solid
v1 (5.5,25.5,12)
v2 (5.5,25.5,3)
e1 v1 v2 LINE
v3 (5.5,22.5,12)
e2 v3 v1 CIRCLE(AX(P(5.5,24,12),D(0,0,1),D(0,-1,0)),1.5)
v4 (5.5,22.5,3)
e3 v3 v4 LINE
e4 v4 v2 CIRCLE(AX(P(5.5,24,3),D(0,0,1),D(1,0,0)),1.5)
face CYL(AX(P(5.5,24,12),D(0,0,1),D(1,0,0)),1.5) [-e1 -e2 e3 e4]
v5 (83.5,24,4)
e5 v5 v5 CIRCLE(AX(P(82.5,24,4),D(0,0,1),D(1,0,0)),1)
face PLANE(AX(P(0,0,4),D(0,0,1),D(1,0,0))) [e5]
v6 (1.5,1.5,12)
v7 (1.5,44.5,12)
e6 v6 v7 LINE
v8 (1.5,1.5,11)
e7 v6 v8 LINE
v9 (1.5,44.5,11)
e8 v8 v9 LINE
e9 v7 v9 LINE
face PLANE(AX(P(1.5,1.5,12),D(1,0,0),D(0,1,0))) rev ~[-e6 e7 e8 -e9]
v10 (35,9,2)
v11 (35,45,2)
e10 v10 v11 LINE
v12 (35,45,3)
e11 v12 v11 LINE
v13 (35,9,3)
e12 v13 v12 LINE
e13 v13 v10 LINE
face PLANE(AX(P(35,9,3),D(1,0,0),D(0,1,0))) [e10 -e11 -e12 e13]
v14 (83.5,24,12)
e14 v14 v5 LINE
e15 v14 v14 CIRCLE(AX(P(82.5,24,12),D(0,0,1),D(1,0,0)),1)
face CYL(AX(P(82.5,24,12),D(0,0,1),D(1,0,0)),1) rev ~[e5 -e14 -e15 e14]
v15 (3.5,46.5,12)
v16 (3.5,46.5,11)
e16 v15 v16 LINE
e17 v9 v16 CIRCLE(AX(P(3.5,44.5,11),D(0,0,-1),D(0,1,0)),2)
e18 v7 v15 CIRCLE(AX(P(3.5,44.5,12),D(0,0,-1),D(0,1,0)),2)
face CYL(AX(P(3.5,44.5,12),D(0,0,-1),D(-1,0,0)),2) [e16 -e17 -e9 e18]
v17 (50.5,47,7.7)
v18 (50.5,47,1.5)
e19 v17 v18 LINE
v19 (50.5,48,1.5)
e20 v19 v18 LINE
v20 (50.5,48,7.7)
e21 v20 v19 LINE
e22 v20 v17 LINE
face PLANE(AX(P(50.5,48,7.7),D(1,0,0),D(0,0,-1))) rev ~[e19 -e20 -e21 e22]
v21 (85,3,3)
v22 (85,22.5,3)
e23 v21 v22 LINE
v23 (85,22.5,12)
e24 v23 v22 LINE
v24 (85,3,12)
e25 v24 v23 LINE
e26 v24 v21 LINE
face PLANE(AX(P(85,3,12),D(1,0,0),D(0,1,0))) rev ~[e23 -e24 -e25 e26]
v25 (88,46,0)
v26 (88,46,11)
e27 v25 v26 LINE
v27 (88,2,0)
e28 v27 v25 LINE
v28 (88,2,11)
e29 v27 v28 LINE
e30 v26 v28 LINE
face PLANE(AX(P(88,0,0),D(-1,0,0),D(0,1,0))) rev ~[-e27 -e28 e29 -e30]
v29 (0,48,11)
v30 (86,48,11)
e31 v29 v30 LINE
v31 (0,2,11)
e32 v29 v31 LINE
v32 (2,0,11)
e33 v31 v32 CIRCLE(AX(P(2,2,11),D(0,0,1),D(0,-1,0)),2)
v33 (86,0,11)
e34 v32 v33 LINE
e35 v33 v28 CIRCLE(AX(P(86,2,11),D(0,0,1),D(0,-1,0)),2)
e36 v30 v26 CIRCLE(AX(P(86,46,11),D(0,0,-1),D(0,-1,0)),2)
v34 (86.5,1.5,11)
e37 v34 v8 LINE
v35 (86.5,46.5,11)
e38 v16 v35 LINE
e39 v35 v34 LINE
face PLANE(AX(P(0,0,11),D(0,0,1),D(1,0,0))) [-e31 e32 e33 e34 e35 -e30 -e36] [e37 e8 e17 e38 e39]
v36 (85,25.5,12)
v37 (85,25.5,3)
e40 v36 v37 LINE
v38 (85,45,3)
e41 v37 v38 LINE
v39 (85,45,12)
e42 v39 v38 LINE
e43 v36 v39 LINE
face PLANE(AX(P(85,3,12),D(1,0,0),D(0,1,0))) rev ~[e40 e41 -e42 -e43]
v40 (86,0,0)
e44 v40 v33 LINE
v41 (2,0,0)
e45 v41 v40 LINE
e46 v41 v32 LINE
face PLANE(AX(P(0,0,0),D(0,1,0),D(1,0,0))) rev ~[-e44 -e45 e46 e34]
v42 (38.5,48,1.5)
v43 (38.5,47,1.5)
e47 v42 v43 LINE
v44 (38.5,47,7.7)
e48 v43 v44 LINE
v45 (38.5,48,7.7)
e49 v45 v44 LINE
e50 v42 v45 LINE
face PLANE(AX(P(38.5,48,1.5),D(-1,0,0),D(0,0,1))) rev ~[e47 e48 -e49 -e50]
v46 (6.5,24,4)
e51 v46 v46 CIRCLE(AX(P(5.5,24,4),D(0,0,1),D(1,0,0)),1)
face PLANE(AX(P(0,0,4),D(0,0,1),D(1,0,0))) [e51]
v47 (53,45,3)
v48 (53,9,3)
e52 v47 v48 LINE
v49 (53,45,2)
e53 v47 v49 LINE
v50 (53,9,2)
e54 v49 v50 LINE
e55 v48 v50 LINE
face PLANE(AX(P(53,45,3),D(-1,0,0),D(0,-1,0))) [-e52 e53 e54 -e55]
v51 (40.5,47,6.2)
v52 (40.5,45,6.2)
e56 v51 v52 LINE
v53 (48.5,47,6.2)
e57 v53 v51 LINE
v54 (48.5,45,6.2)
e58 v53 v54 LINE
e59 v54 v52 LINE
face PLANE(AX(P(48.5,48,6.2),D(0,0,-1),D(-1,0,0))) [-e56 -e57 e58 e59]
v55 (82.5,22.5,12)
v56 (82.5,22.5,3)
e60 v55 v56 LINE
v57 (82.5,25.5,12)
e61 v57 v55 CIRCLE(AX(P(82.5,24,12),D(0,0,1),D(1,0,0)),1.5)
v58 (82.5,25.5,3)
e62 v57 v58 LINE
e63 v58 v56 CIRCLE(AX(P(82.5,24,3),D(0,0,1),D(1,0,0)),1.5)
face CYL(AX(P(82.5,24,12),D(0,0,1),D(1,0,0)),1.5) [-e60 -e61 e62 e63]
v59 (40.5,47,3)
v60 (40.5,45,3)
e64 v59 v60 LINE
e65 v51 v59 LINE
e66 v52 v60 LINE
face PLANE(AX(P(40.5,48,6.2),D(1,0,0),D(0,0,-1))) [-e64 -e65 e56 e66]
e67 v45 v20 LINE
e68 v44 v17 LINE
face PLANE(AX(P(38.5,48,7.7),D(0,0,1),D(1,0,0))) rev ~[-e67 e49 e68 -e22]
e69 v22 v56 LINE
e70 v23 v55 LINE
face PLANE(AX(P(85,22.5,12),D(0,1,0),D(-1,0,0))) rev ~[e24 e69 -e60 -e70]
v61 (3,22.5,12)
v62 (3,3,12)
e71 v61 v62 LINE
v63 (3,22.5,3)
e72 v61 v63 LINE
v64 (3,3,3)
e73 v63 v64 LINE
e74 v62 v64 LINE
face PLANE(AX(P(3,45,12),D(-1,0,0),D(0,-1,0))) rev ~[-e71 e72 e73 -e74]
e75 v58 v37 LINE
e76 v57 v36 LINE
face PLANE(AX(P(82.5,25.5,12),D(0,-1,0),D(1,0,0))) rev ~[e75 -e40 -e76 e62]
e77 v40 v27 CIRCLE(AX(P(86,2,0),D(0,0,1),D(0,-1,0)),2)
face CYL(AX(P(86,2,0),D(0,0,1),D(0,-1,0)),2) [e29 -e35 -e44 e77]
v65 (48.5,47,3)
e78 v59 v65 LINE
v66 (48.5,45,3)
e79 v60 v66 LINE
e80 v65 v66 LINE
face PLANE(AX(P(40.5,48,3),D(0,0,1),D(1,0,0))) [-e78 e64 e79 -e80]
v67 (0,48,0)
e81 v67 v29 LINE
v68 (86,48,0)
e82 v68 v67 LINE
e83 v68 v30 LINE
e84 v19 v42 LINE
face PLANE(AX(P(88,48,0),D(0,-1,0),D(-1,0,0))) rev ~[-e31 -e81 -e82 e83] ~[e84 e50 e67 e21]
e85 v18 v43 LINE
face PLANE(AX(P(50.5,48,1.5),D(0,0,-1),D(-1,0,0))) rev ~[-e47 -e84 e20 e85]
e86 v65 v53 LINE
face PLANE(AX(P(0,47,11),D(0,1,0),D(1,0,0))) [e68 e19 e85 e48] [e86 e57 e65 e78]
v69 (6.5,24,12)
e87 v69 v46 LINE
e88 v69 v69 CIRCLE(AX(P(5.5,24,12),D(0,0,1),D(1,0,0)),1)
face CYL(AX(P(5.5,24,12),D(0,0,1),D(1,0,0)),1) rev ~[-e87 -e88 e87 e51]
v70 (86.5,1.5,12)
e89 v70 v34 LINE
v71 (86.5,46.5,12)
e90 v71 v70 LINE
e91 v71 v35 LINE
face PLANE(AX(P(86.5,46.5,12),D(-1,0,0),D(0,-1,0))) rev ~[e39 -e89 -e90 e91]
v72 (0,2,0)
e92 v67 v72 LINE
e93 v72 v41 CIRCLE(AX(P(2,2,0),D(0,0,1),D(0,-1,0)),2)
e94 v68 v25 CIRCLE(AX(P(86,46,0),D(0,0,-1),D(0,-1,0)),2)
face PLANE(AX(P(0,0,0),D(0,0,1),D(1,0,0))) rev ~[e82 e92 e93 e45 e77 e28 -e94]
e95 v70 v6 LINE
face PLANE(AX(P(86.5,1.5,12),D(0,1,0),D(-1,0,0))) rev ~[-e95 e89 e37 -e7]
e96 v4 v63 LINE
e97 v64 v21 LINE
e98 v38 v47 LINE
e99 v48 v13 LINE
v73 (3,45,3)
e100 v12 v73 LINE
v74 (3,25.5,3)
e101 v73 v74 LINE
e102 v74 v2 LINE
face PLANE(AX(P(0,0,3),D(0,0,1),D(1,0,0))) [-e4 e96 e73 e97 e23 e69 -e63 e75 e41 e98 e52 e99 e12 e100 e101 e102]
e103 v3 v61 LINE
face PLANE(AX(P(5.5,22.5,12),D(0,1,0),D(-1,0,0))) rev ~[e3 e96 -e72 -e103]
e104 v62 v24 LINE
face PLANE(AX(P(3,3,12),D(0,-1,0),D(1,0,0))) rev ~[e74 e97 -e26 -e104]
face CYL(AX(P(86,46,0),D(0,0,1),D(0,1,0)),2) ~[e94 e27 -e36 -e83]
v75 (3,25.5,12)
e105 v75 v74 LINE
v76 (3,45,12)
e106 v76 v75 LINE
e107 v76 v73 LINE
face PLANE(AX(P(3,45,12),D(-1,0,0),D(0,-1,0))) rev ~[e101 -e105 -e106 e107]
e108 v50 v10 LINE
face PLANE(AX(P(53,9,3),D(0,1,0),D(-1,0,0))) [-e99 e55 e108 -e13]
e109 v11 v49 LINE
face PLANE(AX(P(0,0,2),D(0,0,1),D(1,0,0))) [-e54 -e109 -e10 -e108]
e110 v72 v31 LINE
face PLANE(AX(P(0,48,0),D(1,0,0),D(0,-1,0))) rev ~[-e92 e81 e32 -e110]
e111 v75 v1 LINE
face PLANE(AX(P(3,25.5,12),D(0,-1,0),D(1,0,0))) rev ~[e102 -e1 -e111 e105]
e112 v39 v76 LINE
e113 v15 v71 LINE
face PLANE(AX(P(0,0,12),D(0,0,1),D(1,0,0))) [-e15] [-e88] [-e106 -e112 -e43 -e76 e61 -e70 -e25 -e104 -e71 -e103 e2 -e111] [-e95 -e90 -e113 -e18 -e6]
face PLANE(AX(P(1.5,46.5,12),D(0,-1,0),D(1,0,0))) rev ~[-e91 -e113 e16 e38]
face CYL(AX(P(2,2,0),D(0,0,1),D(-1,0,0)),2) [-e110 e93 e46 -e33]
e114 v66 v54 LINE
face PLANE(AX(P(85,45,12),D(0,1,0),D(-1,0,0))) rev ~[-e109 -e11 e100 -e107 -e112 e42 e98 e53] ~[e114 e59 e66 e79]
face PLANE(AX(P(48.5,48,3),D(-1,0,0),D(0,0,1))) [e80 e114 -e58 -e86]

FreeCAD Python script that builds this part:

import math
import FreeCAD as App
import Part
import Sketcher
Q = App.Units.Quantity


def edges_at(feature, points):
    """Names of the edges that pass closest to the given points."""
    edges = feature.Shape.Edges
    near = lambda p: min(range(len(edges)), key=lambda i: edges[i].distToShape(Part.Vertex(*p))[0])
    return sorted({f"Edge{near(p) + 1}" for p in points})

doc = App.newDocument("Part")
body = doc.addObject("PartDesign::Body", "Body")

sketch1 = doc.addObject("Sketcher::SketchObject", "Sketch")
body.addObject(sketch1)
sketch1.AttachmentSupport = (doc.XY_Plane, [""])
sketch1.MapMode = "FlatFace"
sketch1.addGeometry([
    Part.LineSegment(App.Vector(0, 48, 0), App.Vector(0, 0, 0)),
    Part.LineSegment(App.Vector(0, 0, 0), App.Vector(88, 0, 0)),
    Part.LineSegment(App.Vector(88, 0, 0), App.Vector(88, 48, 0)),
    Part.LineSegment(App.Vector(88, 48, 0), App.Vector(0, 48, 0)),
], False)
sketch1.addConstraint([
    Sketcher.Constraint("Coincident", 0, 2, 1, 1),
    Sketcher.Constraint("Coincident", 1, 2, 2, 1),
    Sketcher.Constraint("Coincident", 2, 2, 3, 1),
    Sketcher.Constraint("Coincident", 3, 2, 0, 1),
    Sketcher.Constraint("Vertical", 0),
    Sketcher.Constraint("Horizontal", 1),
    Sketcher.Constraint("Vertical", 2),
    Sketcher.Constraint("Horizontal", 3),
    Sketcher.Constraint("Coincident", 0, 2, -1, 1),
    Sketcher.Constraint("DistanceX", 1, 1, 1, 2, Q("88 mm")),
    Sketcher.Constraint("DistanceY", 0, 2, 0, 1, Q("48 mm")),
])
pad1 = doc.addObject("PartDesign::Pad", "Pad")
body.addObject(pad1)
pad1.Profile = sketch1
pad1.Length = 12

sketch2 = doc.addObject("Sketcher::SketchObject", "Sketch001")
body.addObject(sketch2)
sketch2.AttachmentSupport = (doc.XY_Plane, [""])
sketch2.MapMode = "FlatFace"
sketch2.AttachmentOffset = App.Placement(App.Vector(0, 0, 12), App.Rotation())
sketch2.addGeometry([
    Part.LineSegment(App.Vector(3, 45, 0), App.Vector(3, 3, 0)),
    Part.LineSegment(App.Vector(3, 3, 0), App.Vector(85, 3, 0)),
    Part.LineSegment(App.Vector(85, 3, 0), App.Vector(85, 45, 0)),
    Part.LineSegment(App.Vector(85, 45, 0), App.Vector(3, 45, 0)),
], False)
sketch2.addConstraint([
    Sketcher.Constraint("Coincident", 0, 2, 1, 1),
    Sketcher.Constraint("Coincident", 1, 2, 2, 1),
    Sketcher.Constraint("Coincident", 2, 2, 3, 1),
    Sketcher.Constraint("Coincident", 3, 2, 0, 1),
    Sketcher.Constraint("Vertical", 0),
    Sketcher.Constraint("Horizontal", 1),
    Sketcher.Constraint("Vertical", 2),
    Sketcher.Constraint("Horizontal", 3),
    Sketcher.Constraint("DistanceX", -1, 1, 0, 2, Q("3 mm")),
    Sketcher.Constraint("DistanceY", -1, 1, 0, 2, Q("3 mm")),
    Sketcher.Constraint("DistanceX", 1, 1, 1, 2, Q("82 mm")),
    Sketcher.Constraint("DistanceY", 0, 2, 0, 1, Q("42 mm")),
])
pocket1 = doc.addObject("PartDesign::Pocket", "Pocket")
body.addObject(pocket1)
pocket1.Profile = sketch2
pocket1.Length = 9

sketch3 = doc.addObject("Sketcher::SketchObject", "Sketch002")
body.addObject(sketch3)
sketch3.AttachmentSupport = (doc.XY_Plane, [""])
sketch3.MapMode = "FlatFace"
sketch3.AttachmentOffset = App.Placement(App.Vector(0, 0, 12), App.Rotation())
sketch3.addGeometry([
    Part.LineSegment(App.Vector(0, 48, 0), App.Vector(0, 0, 0)),
    Part.LineSegment(App.Vector(0, 0, 0), App.Vector(88, 0, 0)),
    Part.LineSegment(App.Vector(88, 0, 0), App.Vector(88, 48, 0)),
    Part.LineSegment(App.Vector(88, 48, 0), App.Vector(0, 48, 0)),
    Part.LineSegment(App.Vector(2, 2, 0), App.Vector(2, 46, 0)),
    Part.LineSegment(App.Vector(2, 46, 0), App.Vector(86, 46, 0)),
    Part.LineSegment(App.Vector(86, 46, 0), App.Vector(86, 2, 0)),
    Part.LineSegment(App.Vector(86, 2, 0), App.Vector(2, 2, 0)),
], False)
sketch3.addConstraint([
    Sketcher.Constraint("Coincident", 0, 2, 1, 1),
    Sketcher.Constraint("Coincident", 1, 2, 2, 1),
    Sketcher.Constraint("Coincident", 2, 2, 3, 1),
    Sketcher.Constraint("Coincident", 3, 2, 0, 1),
    Sketcher.Constraint("Coincident", 4, 2, 5, 1),
    Sketcher.Constraint("Coincident", 5, 2, 6, 1),
    Sketcher.Constraint("Coincident", 6, 2, 7, 1),
    Sketcher.Constraint("Coincident", 7, 2, 4, 1),
    Sketcher.Constraint("Vertical", 0),
    Sketcher.Constraint("Horizontal", 1),
    Sketcher.Constraint("Vertical", 2),
    Sketcher.Constraint("Horizontal", 3),
    Sketcher.Constraint("Vertical", 4),
    Sketcher.Constraint("Horizontal", 5),
    Sketcher.Constraint("Vertical", 6),
    Sketcher.Constraint("Horizontal", 7),
    Sketcher.Constraint("Coincident", 0, 2, -1, 1),
    Sketcher.Constraint("DistanceX", -1, 1, 4, 2, Q("1.5 mm")),
    Sketcher.Constraint("DistanceY", -1, 1, 6, 2, Q("1.5 mm")),
    Sketcher.Constraint("DistanceY", 4, 2, 3, 2, Q("1.5 mm")),
    Sketcher.Constraint("DistanceX", 5, 2, 2, 2, Q("1.5 mm")),
    Sketcher.Constraint("DistanceX", 1, 1, 1, 2, Q("88 mm")),
    Sketcher.Constraint("DistanceY", 0, 2, 0, 1, Q("48 mm")),
])
pocket2 = doc.addObject("PartDesign::Pocket", "Pocket001")
body.addObject(pocket2)
pocket2.Profile = sketch3
pocket2.Length = 1
doc.recompute()

fillet = doc.addObject("PartDesign::Fillet", "Fillet")
body.addObject(fillet)
fillet.Base = (pocket2, edges_at(pocket2, [
    (0, 0, 5.5),
    (88, 0, 5.5),
    (88, 48, 5.5),
    (1.5, 46.5, 11.5),
]))
fillet.Radius = 2

sketch4 = doc.addObject("Sketcher::SketchObject", "Sketch003")
body.addObject(sketch4)
sketch4.AttachmentSupport = (doc.XY_Plane, [""])
sketch4.MapMode = "FlatFace"
sketch4.AttachmentOffset = App.Placement(App.Vector(0, 0, 12), App.Rotation())
sketch4.addGeometry([
    Part.LineSegment(App.Vector(5.5, 25.5, 0), App.Vector(3, 25.5, 0)),
    Part.LineSegment(App.Vector(3, 25.5, 0), App.Vector(3, 22.5, 0)),
    Part.LineSegment(App.Vector(3, 22.5, 0), App.Vector(5.5, 22.5, 0)),
    Part.ArcOfCircle(Part.Circle(App.Vector(5.5, 24, 0), App.Vector(0, 0, 1), 1.5), math.radians(-90), math.radians(90)),
    Part.LineSegment(App.Vector(85, 22.5, 0), App.Vector(85, 25.5, 0)),
    Part.LineSegment(App.Vector(85, 25.5, 0), App.Vector(82.5, 25.5, 0)),
    Part.ArcOfCircle(Part.Circle(App.Vector(82.5, 24, 0), App.Vector(0, 0, 1), 1.5), math.radians(90), math.radians(270)),
    Part.LineSegment(App.Vector(82.5, 22.5, 0), App.Vector(85, 22.5, 0)),
], False)
sketch4.addConstraint([
    Sketcher.Constraint("Coincident", 0, 2, 1, 1),
    Sketcher.Constraint("Coincident", 1, 2, 2, 1),
    Sketcher.Constraint("Tangent", 2, 2, 3, 1),
    Sketcher.Constraint("Tangent", 3, 2, 0, 1),
    Sketcher.Constraint("Coincident", 4, 2, 5, 1),
    Sketcher.Constraint("Tangent", 5, 2, 6, 1),
    Sketcher.Constraint("Tangent", 6, 2, 7, 1),
    Sketcher.Constraint("Coincident", 7, 2, 4, 1),
    Sketcher.Constraint("Horizontal", 0),
    Sketcher.Constraint("Vertical", 1),
    Sketcher.Constraint("Horizontal", 2),
    Sketcher.Constraint("Vertical", 4),
    Sketcher.Constraint("Horizontal", 5),
    Sketcher.Constraint("Horizontal", 7),
    Sketcher.Constraint("Equal", 3, 6),
    Sketcher.Constraint("Horizontal", 3, 3, 6, 3),
    Sketcher.Constraint("Equal", 2, 5),
    Sketcher.Constraint("Radius", 3, Q("1.5 mm")),
    Sketcher.Constraint("DistanceX", 0, 2, 0, 1, Q("2.5 mm")),
    Sketcher.Constraint("DistanceX", -1, 1, 0, 2, Q("3 mm")),
    Sketcher.Constraint("DistanceY", -1, 1, 3, 3, Q("24 mm")),
    Sketcher.Constraint("DistanceX", -1, 1, 4, 2, Q("85 mm")),
])
pad2 = doc.addObject("PartDesign::Pad", "Pad001")
body.addObject(pad2)
pad2.Profile = sketch4
pad2.Length = 10
pad2.Reversed = True

sketch5 = doc.addObject("Sketcher::SketchObject", "Sketch004")
body.addObject(sketch5)
sketch5.AttachmentSupport = (doc.XY_Plane, [""])
sketch5.MapMode = "FlatFace"
sketch5.AttachmentOffset = App.Placement(App.Vector(0, 0, 12), App.Rotation())
sketch5.addGeometry([
    Part.Circle(App.Vector(5.5, 24, 0), App.Vector(0, 0, 1), 1),
    Part.Circle(App.Vector(82.5, 24, 0), App.Vector(0, 0, 1), 1),
], False)
sketch5.addConstraint([
    Sketcher.Constraint("Equal", 0, 1),
    Sketcher.Constraint("Horizontal", 0, 3, 1, 3),
    Sketcher.Constraint("Diameter", 0, Q("2 mm")),
    Sketcher.Constraint("DistanceY", -1, 1, 0, 3, Q("24 mm")),
    Sketcher.Constraint("DistanceX", 0, 3, 1, 3, Q("77 mm")),
    Sketcher.Constraint("DistanceX", -1, 1, 0, 3, Q("5.5 mm")),
])
pocket3 = doc.addObject("PartDesign::Pocket", "Pocket002")
body.addObject(pocket3)
pocket3.Profile = sketch5
pocket3.Length = 8

sketch6 = doc.addObject("Sketcher::SketchObject", "Sketch005")
body.addObject(sketch6)
sketch6.AttachmentSupport = (doc.XY_Plane, [""])
sketch6.MapMode = "FlatFace"
sketch6.AttachmentOffset = App.Placement(App.Vector(0, 0, 3), App.Rotation())
sketch6.addGeometry([
    Part.LineSegment(App.Vector(53, 45, 0), App.Vector(35, 45, 0)),
    Part.LineSegment(App.Vector(35, 45, 0), App.Vector(35, 9, 0)),
    Part.LineSegment(App.Vector(35, 9, 0), App.Vector(53, 9, 0)),
    Part.LineSegment(App.Vector(53, 9, 0), App.Vector(53, 45, 0)),
], False)
sketch6.addConstraint([
    Sketcher.Constraint("Coincident", 0, 2, 1, 1),
    Sketcher.Constraint("Coincident", 1, 2, 2, 1),
    Sketcher.Constraint("Coincident", 2, 2, 3, 1),
    Sketcher.Constraint("Coincident", 3, 2, 0, 1),
    Sketcher.Constraint("Horizontal", 0),
    Sketcher.Constraint("Vertical", 1),
    Sketcher.Constraint("Horizontal", 2),
    Sketcher.Constraint("Vertical", 3),
    Sketcher.Constraint("DistanceX", 0, 2, 0, 1, Q("18 mm")),
    Sketcher.Constraint("DistanceY", 1, 2, 1, 1, Q("36 mm")),
    Sketcher.Constraint("DistanceX", -1, 1, 0, 2, Q("35 mm")),
    Sketcher.Constraint("DistanceY", -1, 1, 0, 2, Q("45 mm")),
])
pocket4 = doc.addObject("PartDesign::Pocket", "Pocket003")
body.addObject(pocket4)
pocket4.Profile = sketch6
pocket4.Length = 1

sketch7 = doc.addObject("Sketcher::SketchObject", "Sketch006")
body.addObject(sketch7)
sketch7.AttachmentSupport = (doc.XZ_Plane, [""])
sketch7.MapMode = "FlatFace"
sketch7.AttachmentOffset = App.Placement(App.Vector(0, 0, -48), App.Rotation())
sketch7.addGeometry([
    Part.LineSegment(App.Vector(40.5, 6.2, 0), App.Vector(48.5, 6.2, 0)),
    Part.LineSegment(App.Vector(48.5, 6.2, 0), App.Vector(48.5, 3, 0)),
    Part.LineSegment(App.Vector(48.5, 3, 0), App.Vector(40.5, 3, 0)),
    Part.LineSegment(App.Vector(40.5, 3, 0), App.Vector(40.5, 6.2, 0)),
], False)
sketch7.addConstraint([
    Sketcher.Constraint("Coincident", 0, 2, 1, 1),
    Sketcher.Constraint("Coincident", 1, 2, 2, 1),
    Sketcher.Constraint("Coincident", 2, 2, 3, 1),
    Sketcher.Constraint("Coincident", 3, 2, 0, 1),
    Sketcher.Constraint("Horizontal", 0),
    Sketcher.Constraint("Vertical", 1),
    Sketcher.Constraint("Horizontal", 2),
    Sketcher.Constraint("Vertical", 3),
    Sketcher.Constraint("DistanceX", 0, 1, 0, 2, Q("8 mm")),
    Sketcher.Constraint("DistanceY", 1, 2, 1, 1, Q("3.2 mm")),
    Sketcher.Constraint("DistanceY", -1, 1, 1, 2, Q("3 mm")),
    Sketcher.Constraint("DistanceX", -1, 1, 0, 2, Q("48.5 mm")),
])
pocket5 = doc.addObject("PartDesign::Pocket", "Pocket004")
body.addObject(pocket5)
pocket5.Profile = sketch7
pocket5.Length = 4
pocket5.Reversed = True

sketch8 = doc.addObject("Sketcher::SketchObject", "Sketch007")
body.addObject(sketch8)
sketch8.AttachmentSupport = (doc.XZ_Plane, [""])
sketch8.MapMode = "FlatFace"
sketch8.AttachmentOffset = App.Placement(App.Vector(0, 0, -48), App.Rotation())
sketch8.addGeometry([
    Part.LineSegment(App.Vector(50.5, 7.7, 0), App.Vector(50.5, 1.5, 0)),
    Part.LineSegment(App.Vector(50.5, 1.5, 0), App.Vector(38.5, 1.5, 0)),
    Part.LineSegment(App.Vector(38.5, 1.5, 0), App.Vector(38.5, 7.7, 0)),
    Part.LineSegment(App.Vector(38.5, 7.7, 0), App.Vector(50.5, 7.7, 0)),
    Part.LineSegment(App.Vector(40.5, 3, 0), App.Vector(48.5, 3, 0)),
    Part.LineSegment(App.Vector(48.5, 3, 0), App.Vector(48.5, 6.2, 0)),
    Part.LineSegment(App.Vector(48.5, 6.2, 0), App.Vector(40.5, 6.2, 0)),
    Part.LineSegment(App.Vector(40.5, 6.2, 0), App.Vector(40.5, 3, 0)),
], False)
sketch8.addConstraint([
    Sketcher.Constraint("Coincident", 0, 2, 1, 1),
    Sketcher.Constraint("Coincident", 1, 2, 2, 1),
    Sketcher.Constraint("Coincident", 2, 2, 3, 1),
    Sketcher.Constraint("Coincident", 3, 2, 0, 1),
    Sketcher.Constraint("Coincident", 4, 2, 5, 1),
    Sketcher.Constraint("Coincident", 5, 2, 6, 1),
    Sketcher.Constraint("Coincident", 6, 2, 7, 1),
    Sketcher.Constraint("Coincident", 7, 2, 4, 1),
    Sketcher.Constraint("Vertical", 0),
    Sketcher.Constraint("Horizontal", 1),
    Sketcher.Constraint("Vertical", 2),
    Sketcher.Constraint("Horizontal", 3),
    Sketcher.Constraint("Horizontal", 4),
    Sketcher.Constraint("Vertical", 5),
    Sketcher.Constraint("Horizontal", 6),
    Sketcher.Constraint("Vertical", 7),
    Sketcher.Constraint("DistanceX", 4, 2, 0, 2, Q("2 mm")),
    Sketcher.Constraint("DistanceX", 2, 2, 6, 2, Q("2 mm")),
    Sketcher.Constraint("DistanceY", -1, 1, 0, 2, Q("1.5 mm")),
    Sketcher.Constraint("DistanceY", 0, 2, 4, 2, Q("1.5 mm")),
    Sketcher.Constraint("DistanceY", 5, 2, 3, 2, Q("1.5 mm")),
    Sketcher.Constraint("DistanceX", 1, 2, 1, 1, Q("12 mm")),
    Sketcher.Constraint("DistanceY", 0, 2, 0, 1, Q("6.2 mm")),
    Sketcher.Constraint("DistanceX", -1, 1, 0, 2, Q("50.5 mm")),
])
pocket6 = doc.addObject("PartDesign::Pocket", "Pocket005")
body.addObject(pocket6)
pocket6.Profile = sketch8
pocket6.Length = 1
pocket6.Reversed = True

doc.recompute()
